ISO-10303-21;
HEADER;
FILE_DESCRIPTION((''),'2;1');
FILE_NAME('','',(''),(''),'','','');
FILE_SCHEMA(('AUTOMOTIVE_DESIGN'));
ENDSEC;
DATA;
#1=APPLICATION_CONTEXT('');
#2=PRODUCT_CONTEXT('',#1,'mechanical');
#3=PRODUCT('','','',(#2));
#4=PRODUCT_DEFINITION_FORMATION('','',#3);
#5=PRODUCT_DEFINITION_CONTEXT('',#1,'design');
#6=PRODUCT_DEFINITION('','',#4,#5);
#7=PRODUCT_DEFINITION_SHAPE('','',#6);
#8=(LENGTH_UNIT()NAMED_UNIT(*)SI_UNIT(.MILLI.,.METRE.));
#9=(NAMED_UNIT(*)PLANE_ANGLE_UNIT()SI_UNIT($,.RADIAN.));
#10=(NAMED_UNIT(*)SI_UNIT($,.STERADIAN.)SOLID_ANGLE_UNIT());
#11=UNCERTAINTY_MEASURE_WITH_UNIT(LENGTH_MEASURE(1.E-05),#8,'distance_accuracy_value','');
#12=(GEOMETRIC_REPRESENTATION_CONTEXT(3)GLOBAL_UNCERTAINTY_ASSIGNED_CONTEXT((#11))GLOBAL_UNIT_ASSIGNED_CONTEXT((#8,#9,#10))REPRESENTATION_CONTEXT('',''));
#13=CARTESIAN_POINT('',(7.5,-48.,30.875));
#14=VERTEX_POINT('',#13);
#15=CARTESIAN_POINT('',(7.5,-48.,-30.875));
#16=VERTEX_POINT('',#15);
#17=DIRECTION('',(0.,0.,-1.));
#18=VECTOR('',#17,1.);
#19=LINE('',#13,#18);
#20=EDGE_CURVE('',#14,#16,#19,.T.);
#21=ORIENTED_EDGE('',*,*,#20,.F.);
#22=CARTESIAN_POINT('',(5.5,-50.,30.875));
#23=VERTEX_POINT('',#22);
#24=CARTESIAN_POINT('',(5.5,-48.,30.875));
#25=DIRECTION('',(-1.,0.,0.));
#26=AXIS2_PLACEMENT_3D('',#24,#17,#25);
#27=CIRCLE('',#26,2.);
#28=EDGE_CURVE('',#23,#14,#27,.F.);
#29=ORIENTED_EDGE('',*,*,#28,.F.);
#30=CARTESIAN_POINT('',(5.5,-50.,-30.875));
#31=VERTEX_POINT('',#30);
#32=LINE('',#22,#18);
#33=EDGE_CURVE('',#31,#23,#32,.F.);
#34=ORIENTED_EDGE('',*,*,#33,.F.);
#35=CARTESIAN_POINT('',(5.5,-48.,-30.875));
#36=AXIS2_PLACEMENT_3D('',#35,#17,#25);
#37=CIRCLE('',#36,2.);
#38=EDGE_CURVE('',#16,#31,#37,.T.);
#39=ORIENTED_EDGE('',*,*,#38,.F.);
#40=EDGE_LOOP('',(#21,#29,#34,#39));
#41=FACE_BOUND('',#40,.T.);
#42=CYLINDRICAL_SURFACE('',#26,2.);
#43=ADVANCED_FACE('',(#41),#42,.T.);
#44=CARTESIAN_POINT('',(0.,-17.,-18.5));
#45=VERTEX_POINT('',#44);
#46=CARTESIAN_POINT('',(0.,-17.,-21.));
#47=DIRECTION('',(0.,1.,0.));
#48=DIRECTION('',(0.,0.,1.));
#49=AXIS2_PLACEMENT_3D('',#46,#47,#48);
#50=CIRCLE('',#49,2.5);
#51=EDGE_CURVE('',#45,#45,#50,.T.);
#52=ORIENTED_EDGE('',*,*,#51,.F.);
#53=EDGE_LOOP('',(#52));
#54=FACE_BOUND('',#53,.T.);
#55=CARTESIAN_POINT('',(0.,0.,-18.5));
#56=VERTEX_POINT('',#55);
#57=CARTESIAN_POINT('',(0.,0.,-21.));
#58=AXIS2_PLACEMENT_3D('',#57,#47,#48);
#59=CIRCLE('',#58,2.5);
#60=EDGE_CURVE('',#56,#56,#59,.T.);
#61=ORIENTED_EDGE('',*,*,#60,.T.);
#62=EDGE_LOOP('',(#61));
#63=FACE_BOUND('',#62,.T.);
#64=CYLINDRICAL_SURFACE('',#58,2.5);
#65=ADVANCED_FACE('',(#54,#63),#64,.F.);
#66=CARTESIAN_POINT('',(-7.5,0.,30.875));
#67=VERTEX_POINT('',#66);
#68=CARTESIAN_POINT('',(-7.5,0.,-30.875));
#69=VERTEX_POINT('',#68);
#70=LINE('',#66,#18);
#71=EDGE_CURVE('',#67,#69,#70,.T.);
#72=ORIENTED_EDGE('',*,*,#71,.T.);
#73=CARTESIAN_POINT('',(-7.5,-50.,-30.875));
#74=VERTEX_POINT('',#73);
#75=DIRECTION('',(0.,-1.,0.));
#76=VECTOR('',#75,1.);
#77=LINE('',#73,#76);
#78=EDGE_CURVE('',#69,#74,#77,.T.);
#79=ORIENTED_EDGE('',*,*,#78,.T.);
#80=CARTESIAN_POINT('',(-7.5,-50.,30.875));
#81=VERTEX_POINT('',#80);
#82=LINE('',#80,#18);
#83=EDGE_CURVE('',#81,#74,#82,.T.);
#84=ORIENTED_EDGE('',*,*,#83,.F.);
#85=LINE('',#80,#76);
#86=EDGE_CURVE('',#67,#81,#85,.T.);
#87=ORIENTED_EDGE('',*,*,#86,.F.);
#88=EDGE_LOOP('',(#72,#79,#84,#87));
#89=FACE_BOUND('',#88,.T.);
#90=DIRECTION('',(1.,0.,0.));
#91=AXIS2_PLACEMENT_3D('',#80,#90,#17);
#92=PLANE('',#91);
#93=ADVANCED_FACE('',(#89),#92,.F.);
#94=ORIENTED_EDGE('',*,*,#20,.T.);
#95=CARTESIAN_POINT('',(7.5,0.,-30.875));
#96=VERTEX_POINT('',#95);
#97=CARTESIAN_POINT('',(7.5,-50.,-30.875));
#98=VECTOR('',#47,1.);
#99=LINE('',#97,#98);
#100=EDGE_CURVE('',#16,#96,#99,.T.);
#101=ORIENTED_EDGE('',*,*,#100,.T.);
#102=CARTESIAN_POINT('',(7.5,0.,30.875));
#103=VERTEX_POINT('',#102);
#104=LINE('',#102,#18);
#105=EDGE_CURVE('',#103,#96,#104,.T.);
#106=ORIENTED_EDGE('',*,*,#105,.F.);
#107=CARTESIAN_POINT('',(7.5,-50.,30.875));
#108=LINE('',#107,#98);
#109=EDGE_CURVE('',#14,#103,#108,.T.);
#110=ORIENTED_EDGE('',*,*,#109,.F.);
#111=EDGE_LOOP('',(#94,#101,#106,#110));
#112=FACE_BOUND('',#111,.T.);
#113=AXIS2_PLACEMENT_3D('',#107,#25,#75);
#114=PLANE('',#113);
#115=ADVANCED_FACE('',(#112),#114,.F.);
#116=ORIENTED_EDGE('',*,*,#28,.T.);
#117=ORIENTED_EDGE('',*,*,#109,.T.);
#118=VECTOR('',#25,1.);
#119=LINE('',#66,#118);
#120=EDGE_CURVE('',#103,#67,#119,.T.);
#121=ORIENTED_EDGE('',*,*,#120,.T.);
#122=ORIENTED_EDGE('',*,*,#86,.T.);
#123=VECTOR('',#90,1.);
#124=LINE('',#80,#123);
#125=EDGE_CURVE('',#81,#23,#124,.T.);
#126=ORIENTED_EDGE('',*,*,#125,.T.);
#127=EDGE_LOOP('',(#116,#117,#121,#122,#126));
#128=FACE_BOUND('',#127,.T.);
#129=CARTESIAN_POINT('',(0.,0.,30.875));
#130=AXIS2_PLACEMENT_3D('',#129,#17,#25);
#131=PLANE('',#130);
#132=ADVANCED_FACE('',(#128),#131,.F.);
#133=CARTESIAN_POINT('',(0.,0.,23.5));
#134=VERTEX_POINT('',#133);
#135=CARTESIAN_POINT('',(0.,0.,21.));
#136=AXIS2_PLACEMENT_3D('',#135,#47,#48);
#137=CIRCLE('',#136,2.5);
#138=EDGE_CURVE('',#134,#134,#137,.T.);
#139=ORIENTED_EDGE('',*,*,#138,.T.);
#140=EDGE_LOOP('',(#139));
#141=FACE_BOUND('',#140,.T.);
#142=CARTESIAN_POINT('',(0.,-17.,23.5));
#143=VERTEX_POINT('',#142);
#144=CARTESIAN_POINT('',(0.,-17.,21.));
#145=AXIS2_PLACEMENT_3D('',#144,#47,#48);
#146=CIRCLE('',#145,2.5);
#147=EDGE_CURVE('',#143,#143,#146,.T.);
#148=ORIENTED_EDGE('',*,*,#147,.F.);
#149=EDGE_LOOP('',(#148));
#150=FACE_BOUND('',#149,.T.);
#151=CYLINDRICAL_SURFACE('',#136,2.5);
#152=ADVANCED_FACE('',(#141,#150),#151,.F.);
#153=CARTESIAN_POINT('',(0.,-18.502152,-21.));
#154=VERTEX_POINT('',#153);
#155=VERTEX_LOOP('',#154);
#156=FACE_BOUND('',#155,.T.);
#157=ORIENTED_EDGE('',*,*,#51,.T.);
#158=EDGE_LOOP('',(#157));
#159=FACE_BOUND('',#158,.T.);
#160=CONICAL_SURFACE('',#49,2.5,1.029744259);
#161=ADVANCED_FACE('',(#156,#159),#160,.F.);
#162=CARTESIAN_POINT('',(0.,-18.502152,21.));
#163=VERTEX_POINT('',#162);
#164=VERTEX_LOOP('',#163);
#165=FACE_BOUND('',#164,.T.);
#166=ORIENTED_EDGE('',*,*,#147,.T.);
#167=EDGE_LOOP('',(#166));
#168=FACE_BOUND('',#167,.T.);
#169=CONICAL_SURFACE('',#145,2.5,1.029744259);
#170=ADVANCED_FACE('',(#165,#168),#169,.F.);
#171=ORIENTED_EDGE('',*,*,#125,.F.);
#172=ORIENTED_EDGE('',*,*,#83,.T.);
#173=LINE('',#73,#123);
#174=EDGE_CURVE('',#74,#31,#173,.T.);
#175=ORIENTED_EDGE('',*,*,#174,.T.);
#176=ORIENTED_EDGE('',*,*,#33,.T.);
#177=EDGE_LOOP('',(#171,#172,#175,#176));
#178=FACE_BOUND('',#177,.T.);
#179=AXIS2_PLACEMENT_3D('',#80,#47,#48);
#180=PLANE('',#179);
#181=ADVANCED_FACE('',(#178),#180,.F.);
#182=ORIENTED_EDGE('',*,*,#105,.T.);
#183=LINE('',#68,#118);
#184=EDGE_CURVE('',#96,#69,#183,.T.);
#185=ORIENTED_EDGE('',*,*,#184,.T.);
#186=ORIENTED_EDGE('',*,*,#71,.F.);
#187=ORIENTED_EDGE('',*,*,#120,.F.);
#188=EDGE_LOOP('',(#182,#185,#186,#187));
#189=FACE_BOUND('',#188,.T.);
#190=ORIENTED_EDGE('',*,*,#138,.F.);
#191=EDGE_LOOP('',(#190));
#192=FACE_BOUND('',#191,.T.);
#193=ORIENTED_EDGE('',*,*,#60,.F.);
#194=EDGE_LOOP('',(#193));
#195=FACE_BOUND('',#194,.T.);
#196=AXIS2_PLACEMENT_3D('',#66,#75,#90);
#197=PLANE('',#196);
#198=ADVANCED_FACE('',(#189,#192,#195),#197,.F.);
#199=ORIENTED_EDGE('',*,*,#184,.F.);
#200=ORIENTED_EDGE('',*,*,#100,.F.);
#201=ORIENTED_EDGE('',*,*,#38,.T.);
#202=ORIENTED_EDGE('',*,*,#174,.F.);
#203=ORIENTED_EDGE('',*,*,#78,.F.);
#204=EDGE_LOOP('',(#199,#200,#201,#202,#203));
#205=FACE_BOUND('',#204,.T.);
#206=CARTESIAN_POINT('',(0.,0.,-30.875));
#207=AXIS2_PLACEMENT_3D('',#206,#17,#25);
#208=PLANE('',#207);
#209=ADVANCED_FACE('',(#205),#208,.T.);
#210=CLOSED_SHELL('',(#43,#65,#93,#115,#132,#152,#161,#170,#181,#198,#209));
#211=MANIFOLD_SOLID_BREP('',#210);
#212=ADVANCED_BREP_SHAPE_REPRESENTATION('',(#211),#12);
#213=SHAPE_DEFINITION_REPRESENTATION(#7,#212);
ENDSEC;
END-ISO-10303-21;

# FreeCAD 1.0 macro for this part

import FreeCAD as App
import Part
import Sketcher


def edges_at(feature, points):
    """Names of the edges that pass closest to the given points."""
    edges = feature.Shape.Edges
    near = lambda p: min(range(len(edges)), key=lambda i: edges[i].distToShape(Part.Vertex(*p))[0])
    return sorted({f"Edge{near(p) + 1}" for p in points})


def add_polygon(sketch, points):
    """Adds a closed chain of lines whose ends are joined by coincident constraints."""
    first, n = sketch.GeometryCount, len(points)
    for a, b in zip(points, points[1:] + points[:1]):
        sketch.addGeometry(Part.LineSegment(App.Vector(*a, 0), App.Vector(*b, 0)), False)
    for i in range(n):
        sketch.addConstraint(Sketcher.Constraint("Coincident", first + i, 2, first + (i + 1) % n, 1))

doc = App.newDocument("Part")
body = doc.addObject("PartDesign::Body", "Body")

sketch1 = doc.addObject("Sketcher::SketchObject", "Sketch")
body.addObject(sketch1)
sketch1.AttachmentSupport = (doc.XY_Plane, [""])
sketch1.MapMode = "FlatFace"
add_polygon(sketch1, [(-8, 0), (-8, -50), (8, -50), (8, 0)])
sketch1.addConstraint(Sketcher.Constraint("Vertical", 0))
sketch1.addConstraint(Sketcher.Constraint("Horizontal", 1))
sketch1.addConstraint(Sketcher.Constraint("Vertical", 2))
sketch1.addConstraint(Sketcher.Constraint("Horizontal", 3))
sketch1.addConstraint(Sketcher.Constraint("Symmetric", 2, 2, 3, 2, -1, 1))
sketch1.addConstraint(Sketcher.Constraint("DistanceX", 1, 1, 1, 2, 15.0))
sketch1.addConstraint(Sketcher.Constraint("DistanceY", 0, 2, 0, 1, 50.0))
pad1 = doc.addObject("PartDesign::Pad", "Pad")
body.addObject(pad1)
pad1.Profile = sketch1
pad1.Length = 61.75
pad1.Midplane = True
doc.recompute()

fillet = doc.addObject("PartDesign::Fillet", "Fillet")
body.addObject(fillet)
fillet.Base = (pad1, edges_at(pad1, [(7.5, -50, 0)]))
fillet.Radius = 2

sketch2 = doc.addObject("Sketcher::SketchObject", "Sketch001")
body.addObject(sketch2)
sketch2.AttachmentSupport = (doc.XZ_Plane, [""])
sketch2.MapMode = "FlatFace"
sketch2.addGeometry(Part.Circle(App.Vector(0, -21, 0), App.Vector(0, 0, 1), 2.5), False)
sketch2.addGeometry(Part.Circle(App.Vector(0, 21, 0), App.Vector(0, 0, 1), 2.5), False)
sketch2.addConstraint(Sketcher.Constraint("Equal", 0, 1))
sketch2.addConstraint(Sketcher.Constraint("Symmetric", 0, 3, 1, 3, -1, 1))
sketch2.addConstraint(Sketcher.Constraint("PointOnObject", 0, 3, -2))
sketch2.addConstraint(Sketcher.Constraint("Diameter", 0, 5.0))
sketch2.addConstraint(Sketcher.Constraint("DistanceY", 0, 3, -1, 1, 21.0))
doc.recompute()
hole = doc.addObject("PartDesign::Hole", "Hole")
body.addObject(hole)
hole.Profile = sketch2
hole.ThreadType = "None"
hole.Diameter = 5
hole.DepthType = "Dimension"
hole.Depth = 17
hole.DrillPoint = "Angled"
hole.DrillPointAngle = 118
hole.Reversed = True

doc.recompute()
